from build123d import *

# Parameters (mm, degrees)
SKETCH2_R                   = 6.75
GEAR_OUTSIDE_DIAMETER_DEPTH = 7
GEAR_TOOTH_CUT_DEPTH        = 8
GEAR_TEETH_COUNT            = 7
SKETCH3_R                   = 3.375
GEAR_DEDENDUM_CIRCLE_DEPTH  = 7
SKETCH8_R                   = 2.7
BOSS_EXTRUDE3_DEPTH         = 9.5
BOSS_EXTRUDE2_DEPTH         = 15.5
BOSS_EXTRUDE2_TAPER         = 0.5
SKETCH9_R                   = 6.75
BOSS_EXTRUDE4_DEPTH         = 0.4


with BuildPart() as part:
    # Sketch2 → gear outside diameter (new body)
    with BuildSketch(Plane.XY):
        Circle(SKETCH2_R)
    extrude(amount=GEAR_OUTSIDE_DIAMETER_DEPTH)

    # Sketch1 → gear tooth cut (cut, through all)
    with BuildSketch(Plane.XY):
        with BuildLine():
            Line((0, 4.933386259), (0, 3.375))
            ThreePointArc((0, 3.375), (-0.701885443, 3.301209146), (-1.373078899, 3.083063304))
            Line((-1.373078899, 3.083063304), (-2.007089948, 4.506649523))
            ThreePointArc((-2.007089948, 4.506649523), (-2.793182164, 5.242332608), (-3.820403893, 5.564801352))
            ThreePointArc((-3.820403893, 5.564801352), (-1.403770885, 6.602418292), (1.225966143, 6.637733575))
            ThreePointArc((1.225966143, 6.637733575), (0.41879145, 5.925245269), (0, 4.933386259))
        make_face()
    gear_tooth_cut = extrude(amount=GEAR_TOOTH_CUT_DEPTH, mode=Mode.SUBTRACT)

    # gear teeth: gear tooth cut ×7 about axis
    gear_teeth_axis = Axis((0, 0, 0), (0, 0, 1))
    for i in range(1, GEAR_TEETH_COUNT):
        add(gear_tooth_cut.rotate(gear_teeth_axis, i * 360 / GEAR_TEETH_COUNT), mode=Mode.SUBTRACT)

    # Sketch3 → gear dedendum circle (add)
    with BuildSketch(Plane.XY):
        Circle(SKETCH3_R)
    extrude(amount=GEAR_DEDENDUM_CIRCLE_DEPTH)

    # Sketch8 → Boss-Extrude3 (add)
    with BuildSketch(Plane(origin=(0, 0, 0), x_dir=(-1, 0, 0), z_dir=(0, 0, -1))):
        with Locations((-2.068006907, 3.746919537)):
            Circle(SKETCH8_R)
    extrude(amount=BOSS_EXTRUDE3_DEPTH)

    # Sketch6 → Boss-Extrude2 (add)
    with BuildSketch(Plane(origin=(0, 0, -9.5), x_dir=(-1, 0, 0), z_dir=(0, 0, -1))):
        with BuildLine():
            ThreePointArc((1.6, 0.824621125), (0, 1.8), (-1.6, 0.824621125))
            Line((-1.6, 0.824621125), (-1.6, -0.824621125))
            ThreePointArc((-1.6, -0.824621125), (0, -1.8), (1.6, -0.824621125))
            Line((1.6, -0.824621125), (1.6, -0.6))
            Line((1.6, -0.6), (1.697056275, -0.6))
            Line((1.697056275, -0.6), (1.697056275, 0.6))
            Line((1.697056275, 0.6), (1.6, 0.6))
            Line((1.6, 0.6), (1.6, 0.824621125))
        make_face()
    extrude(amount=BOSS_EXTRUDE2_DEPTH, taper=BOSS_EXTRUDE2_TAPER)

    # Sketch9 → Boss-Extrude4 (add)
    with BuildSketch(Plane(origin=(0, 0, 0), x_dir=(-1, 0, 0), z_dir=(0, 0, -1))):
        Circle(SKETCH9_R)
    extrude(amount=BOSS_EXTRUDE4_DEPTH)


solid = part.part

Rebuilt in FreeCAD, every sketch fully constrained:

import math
import FreeCAD as App
import Part
import Sketcher
Q = App.Units.Quantity

doc = App.newDocument("Part")
params = doc.addObject("Spreadsheet::Sheet", "Params")
for row, (alias, value) in enumerate([
    ("sketch1_diameter", "13.5 mm"),
    ("pad1_length", "7 mm"),
    ("sketch2_radius", "6.75 mm"),
    ("sketch3_diameter", "6.75 mm"),
    ("pad2_length", "7 mm"),
    ("sketch4_diameter", "5.4 mm"),
    ("pad3_length", "9.5 mm"),
    ("sketch5_radius", "1.8 mm"),
    ("sketch5_height", "1.2 mm"),
    ("pad4_length", "15.5 mm"),
    ("pad4_taper", "-0.5 deg"),
    ("sketch6_diameter", "13.5 mm"),
    ("pad5_length", "0.4 mm"),
], start=1):
    params.set(f"A{row}", alias)
    params.set(f"B{row}", "=" + value)
    params.setAlias(f"B{row}", alias)

body = doc.addObject("PartDesign::Body", "Body")

sketch1 = body.newObject("Sketcher::SketchObject", "Sketch")
sketch1.AttachmentSupport = (doc.getObject("XY_Plane"), [""])
sketch1.MapMode = "FlatFace"
sketch1.addGeometry(Part.Circle(App.Vector(0, 0, 0), App.Vector(0, 0, 1), 7), False)
sketch1.addConstraint(Sketcher.Constraint("Coincident", 0, 3, -1, 1))
sketch1.addConstraint(Sketcher.Constraint("Diameter", 0, Q("13.5 mm")))
sketch1.setExpression("Constraints[1]", "Params.sketch1_diameter")
pad1 = body.newObject("PartDesign::Pad", "Pad")
pad1.Profile = sketch1
pad1.setExpression("Length", "Params.pad1_length")

sketch2 = body.newObject("Sketcher::SketchObject", "Sketch001")
sketch2.AttachmentSupport = (doc.getObject("XY_Plane"), [""])
sketch2.MapMode = "FlatFace"
sketch2.addGeometry(Part.LineSegment(App.Vector(0, 3.4, 0), App.Vector(0, 4.9, 0)), False)
sketch2.addGeometry(Part.ArcOfCircle(Part.Circle(App.Vector(2.4, 4.5, 0), App.Vector(0, 0, 1), 2.4), math.radians(119), math.radians(170)), False)
sketch2.addGeometry(Part.ArcOfCircle(Part.Circle(App.Vector(0, 0, 0), App.Vector(0, 0, 1), 6.7), math.radians(80), math.radians(124)), False)
sketch2.addGeometry(Part.ArcOfCircle(Part.Circle(App.Vector(-4, 3.1, 0), App.Vector(0, 0, 1), 2.4), math.radians(34), math.radians(85)), False)
sketch2.addGeometry(Part.LineSegment(App.Vector(-2, 4.5, 0), App.Vector(-1.4, 3.1, 0)), False)
sketch2.addGeometry(Part.ArcOfCircle(Part.Circle(App.Vector(0, 0, 0), App.Vector(0, 0, 1), 3.4), math.radians(90), math.radians(114)), False)
sketch2.addConstraint(Sketcher.Constraint("Coincident", 0, 2, 1, 2))
sketch2.addConstraint(Sketcher.Constraint("Coincident", 1, 1, 2, 1))
sketch2.addConstraint(Sketcher.Constraint("Coincident", 2, 2, 3, 2))
sketch2.addConstraint(Sketcher.Constraint("Coincident", 3, 1, 4, 1))
sketch2.addConstraint(Sketcher.Constraint("Coincident", 4, 2, 5, 2))
sketch2.addConstraint(Sketcher.Constraint("Coincident", 5, 1, 0, 1))
sketch2.addConstraint(Sketcher.Constraint("Vertical", 0))
sketch2.addConstraint(Sketcher.Constraint("Coincident", 2, 3, -1, 1))
sketch2.addConstraint(Sketcher.Constraint("Coincident", 5, 3, -1, 1))
sketch2.addConstraint(Sketcher.Constraint("Equal", 1, 3))
sketch2.addConstraint(Sketcher.Constraint("PointOnObject", 0, 2, -2))
sketch2.addConstraint(Sketcher.Constraint("Radius", 2, Q("6.75 mm")))
sketch2.addConstraint(Sketcher.Constraint("Radius", 5, Q("3.375 mm")))
sketch2.addConstraint(Sketcher.Constraint("Radius", 1, Q("2.422894 mm")))
sketch2.addConstraint(Sketcher.Constraint("DistanceY", -1, 1, 2, 2, Q("5.564801 mm")))
sketch2.addConstraint(Sketcher.Constraint("DistanceY", 0, 1, 0, 2, Q("1.558386 mm")))
sketch2.addConstraint(Sketcher.Constraint("DistanceX", -1, 1, 1, 3, Q("2.38569 mm")))
sketch2.addConstraint(Sketcher.Constraint("DistanceX", 3, 3, -1, 1, Q("4.01434 mm")))
sketch2.addConstraint(Sketcher.Constraint("DistanceX", 3, 1, -1, 1, Q("2.00709 mm")))
sketch2.addConstraint(Sketcher.Constraint("DistanceX", 4, 2, -1, 1, Q("1.373079 mm")))
sketch2.setExpression("Constraints[11]", "Params.sketch2_radius")
pocket1 = body.newObject("PartDesign::Pocket", "Pocket")
pocket1.Profile = sketch2
pocket1.Type = "ThroughAll"
pocket1.Reversed = True
doc.recompute()

polarpattern = body.newObject("PartDesign::PolarPattern", "PolarPattern")
polarpattern.Originals = [pocket1]
polarpattern.Axis = (doc.getObject("Z_Axis"), [""])
polarpattern.Angle = 360
polarpattern.Occurrences = 7
body.Tip = polarpattern

sketch3 = body.newObject("Sketcher::SketchObject", "Sketch002")
sketch3.AttachmentSupport = (doc.getObject("XY_Plane"), [""])
sketch3.MapMode = "FlatFace"
sketch3.addGeometry(Part.Circle(App.Vector(0, 0, 0), App.Vector(0, 0, 1), 3.4), False)
sketch3.addConstraint(Sketcher.Constraint("Coincident", 0, 3, -1, 1))
sketch3.addConstraint(Sketcher.Constraint("Diameter", 0, Q("6.75 mm")))
sketch3.setExpression("Constraints[1]", "Params.sketch3_diameter")
pad2 = body.newObject("PartDesign::Pad", "Pad001")
pad2.Profile = sketch3
pad2.setExpression("Length", "Params.pad2_length")

sketch4 = body.newObject("Sketcher::SketchObject", "Sketch003")
sketch4.AttachmentSupport = (doc.getObject("XY_Plane"), [""])
sketch4.MapMode = "FlatFace"
sketch4.addGeometry(Part.Circle(App.Vector(2.1, 3.7, 0), App.Vector(0, 0, 1), 2.7), False)
sketch4.addConstraint(Sketcher.Constraint("Diameter", 0, Q("5.4 mm")))
sketch4.addConstraint(Sketcher.Constraint("DistanceY", -1, 1, 0, 3, Q("3.74692 mm")))
sketch4.addConstraint(Sketcher.Constraint("DistanceX", -1, 1, 0, 3, Q("2.068007 mm")))
sketch4.setExpression("Constraints[0]", "Params.sketch4_diameter")
pad3 = body.newObject("PartDesign::Pad", "Pad002")
pad3.Profile = sketch4
pad3.setExpression("Length", "Params.pad3_length")
pad3.Reversed = True

sketch5 = body.newObject("Sketcher::SketchObject", "Sketch004")
sketch5.AttachmentSupport = (doc.getObject("XY_Plane"), [""])
sketch5.MapMode = "FlatFace"
sketch5.AttachmentOffset = App.Placement(App.Vector(0, 0, -9.5), App.Rotation())
sketch5.addGeometry(Part.ArcOfCircle(Part.Circle(App.Vector(0, 0, 0), App.Vector(0, 0, 1), 1.8), math.radians(27), math.radians(153)), False)
sketch5.addGeometry(Part.LineSegment(App.Vector(1.6, 0.82, 0), App.Vector(1.6, -0.82, 0)), False)
sketch5.addGeometry(Part.ArcOfCircle(Part.Circle(App.Vector(0, 0, 0), App.Vector(0, 0, 1), 1.8), math.radians(-153), math.radians(-27)), False)
sketch5.addGeometry(Part.LineSegment(App.Vector(-1.6, -0.82, 0), App.Vector(-1.6, -0.6, 0)), False)
sketch5.addGeometry(Part.LineSegment(App.Vector(-1.6, -0.6, 0), App.Vector(-1.7, -0.6, 0)), False)
sketch5.addGeometry(Part.LineSegment(App.Vector(-1.7, -0.6, 0), App.Vector(-1.7, 0.6, 0)), False)
sketch5.addGeometry(Part.LineSegment(App.Vector(-1.7, 0.6, 0), App.Vector(-1.6, 0.6, 0)), False)
sketch5.addGeometry(Part.LineSegment(App.Vector(-1.6, 0.6, 0), App.Vector(-1.6, 0.82, 0)), False)
sketch5.addConstraint(Sketcher.Constraint("Coincident", 0, 1, 1, 1))
sketch5.addConstraint(Sketcher.Constraint("Coincident", 1, 2, 2, 2))
sketch5.addConstraint(Sketcher.Constraint("Coincident", 2, 1, 3, 1))
sketch5.addConstraint(Sketcher.Constraint("Coincident", 3, 2, 4, 1))
sketch5.addConstraint(Sketcher.Constraint("Coincident", 4, 2, 5, 1))
sketch5.addConstraint(Sketcher.Constraint("Coincident", 5, 2, 6, 1))
sketch5.addConstraint(Sketcher.Constraint("Coincident", 6, 2, 7, 1))
sketch5.addConstraint(Sketcher.Constraint("Coincident", 7, 2, 0, 2))
sketch5.addConstraint(Sketcher.Constraint("Vertical", 1))
sketch5.addConstraint(Sketcher.Constraint("Vertical", 3))
sketch5.addConstraint(Sketcher.Constraint("Horizontal", 4))
sketch5.addConstraint(Sketcher.Constraint("Vertical", 5))
sketch5.addConstraint(Sketcher.Constraint("Horizontal", 6))
sketch5.addConstraint(Sketcher.Constraint("Vertical", 7))
sketch5.addConstraint(Sketcher.Constraint("Coincident", 0, 3, -1, 1))
sketch5.addConstraint(Sketcher.Constraint("Coincident", 2, 3, -1, 1))
sketch5.addConstraint(Sketcher.Constraint("Equal", 0, 2))
sketch5.addConstraint(Sketcher.Constraint("Symmetric", 3, 2, 6, 2, -1))
sketch5.addConstraint(Sketcher.Constraint("Horizontal", 1, 2, 2, 1))
sketch5.addConstraint(Sketcher.Constraint("Radius", 0, Q("1.8 mm")))
sketch5.addConstraint(Sketcher.Constraint("DistanceY", 5, 1, 5, 2, Q("1.2 mm")))
sketch5.addConstraint(Sketcher.Constraint("DistanceX", -1, 1, 0, 1, Q("1.6 mm")))
sketch5.addConstraint(Sketcher.Constraint("DistanceX", 4, 2, 4, 1, Q("0.097056 mm")))
sketch5.setExpression("Constraints[19]", "Params.sketch5_radius")
sketch5.setExpression("Constraints[20]", "Params.sketch5_height")
pad4 = body.newObject("PartDesign::Pad", "Pad003")
pad4.Profile = sketch5
pad4.setExpression("Length", "Params.pad4_length")
pad4.Reversed = True
pad4.setExpression("TaperAngle", "Params.pad4_taper")

sketch6 = body.newObject("Sketcher::SketchObject", "Sketch005")
sketch6.AttachmentSupport = (doc.getObject("XY_Plane"), [""])
sketch6.MapMode = "FlatFace"
sketch6.addGeometry(Part.Circle(App.Vector(0, 0, 0), App.Vector(0, 0, 1), 7), False)
sketch6.addConstraint(Sketcher.Constraint("Coincident", 0, 3, -1, 1))
sketch6.addConstraint(Sketcher.Constraint("Diameter", 0, Q("13.5 mm")))
sketch6.setExpression("Constraints[1]", "Params.sketch6_diameter")
pad5 = body.newObject("PartDesign::Pad", "Pad004")
pad5.Profile = sketch6
pad5.setExpression("Length", "Params.pad5_length")
pad5.Reversed = True

doc.recompute()
